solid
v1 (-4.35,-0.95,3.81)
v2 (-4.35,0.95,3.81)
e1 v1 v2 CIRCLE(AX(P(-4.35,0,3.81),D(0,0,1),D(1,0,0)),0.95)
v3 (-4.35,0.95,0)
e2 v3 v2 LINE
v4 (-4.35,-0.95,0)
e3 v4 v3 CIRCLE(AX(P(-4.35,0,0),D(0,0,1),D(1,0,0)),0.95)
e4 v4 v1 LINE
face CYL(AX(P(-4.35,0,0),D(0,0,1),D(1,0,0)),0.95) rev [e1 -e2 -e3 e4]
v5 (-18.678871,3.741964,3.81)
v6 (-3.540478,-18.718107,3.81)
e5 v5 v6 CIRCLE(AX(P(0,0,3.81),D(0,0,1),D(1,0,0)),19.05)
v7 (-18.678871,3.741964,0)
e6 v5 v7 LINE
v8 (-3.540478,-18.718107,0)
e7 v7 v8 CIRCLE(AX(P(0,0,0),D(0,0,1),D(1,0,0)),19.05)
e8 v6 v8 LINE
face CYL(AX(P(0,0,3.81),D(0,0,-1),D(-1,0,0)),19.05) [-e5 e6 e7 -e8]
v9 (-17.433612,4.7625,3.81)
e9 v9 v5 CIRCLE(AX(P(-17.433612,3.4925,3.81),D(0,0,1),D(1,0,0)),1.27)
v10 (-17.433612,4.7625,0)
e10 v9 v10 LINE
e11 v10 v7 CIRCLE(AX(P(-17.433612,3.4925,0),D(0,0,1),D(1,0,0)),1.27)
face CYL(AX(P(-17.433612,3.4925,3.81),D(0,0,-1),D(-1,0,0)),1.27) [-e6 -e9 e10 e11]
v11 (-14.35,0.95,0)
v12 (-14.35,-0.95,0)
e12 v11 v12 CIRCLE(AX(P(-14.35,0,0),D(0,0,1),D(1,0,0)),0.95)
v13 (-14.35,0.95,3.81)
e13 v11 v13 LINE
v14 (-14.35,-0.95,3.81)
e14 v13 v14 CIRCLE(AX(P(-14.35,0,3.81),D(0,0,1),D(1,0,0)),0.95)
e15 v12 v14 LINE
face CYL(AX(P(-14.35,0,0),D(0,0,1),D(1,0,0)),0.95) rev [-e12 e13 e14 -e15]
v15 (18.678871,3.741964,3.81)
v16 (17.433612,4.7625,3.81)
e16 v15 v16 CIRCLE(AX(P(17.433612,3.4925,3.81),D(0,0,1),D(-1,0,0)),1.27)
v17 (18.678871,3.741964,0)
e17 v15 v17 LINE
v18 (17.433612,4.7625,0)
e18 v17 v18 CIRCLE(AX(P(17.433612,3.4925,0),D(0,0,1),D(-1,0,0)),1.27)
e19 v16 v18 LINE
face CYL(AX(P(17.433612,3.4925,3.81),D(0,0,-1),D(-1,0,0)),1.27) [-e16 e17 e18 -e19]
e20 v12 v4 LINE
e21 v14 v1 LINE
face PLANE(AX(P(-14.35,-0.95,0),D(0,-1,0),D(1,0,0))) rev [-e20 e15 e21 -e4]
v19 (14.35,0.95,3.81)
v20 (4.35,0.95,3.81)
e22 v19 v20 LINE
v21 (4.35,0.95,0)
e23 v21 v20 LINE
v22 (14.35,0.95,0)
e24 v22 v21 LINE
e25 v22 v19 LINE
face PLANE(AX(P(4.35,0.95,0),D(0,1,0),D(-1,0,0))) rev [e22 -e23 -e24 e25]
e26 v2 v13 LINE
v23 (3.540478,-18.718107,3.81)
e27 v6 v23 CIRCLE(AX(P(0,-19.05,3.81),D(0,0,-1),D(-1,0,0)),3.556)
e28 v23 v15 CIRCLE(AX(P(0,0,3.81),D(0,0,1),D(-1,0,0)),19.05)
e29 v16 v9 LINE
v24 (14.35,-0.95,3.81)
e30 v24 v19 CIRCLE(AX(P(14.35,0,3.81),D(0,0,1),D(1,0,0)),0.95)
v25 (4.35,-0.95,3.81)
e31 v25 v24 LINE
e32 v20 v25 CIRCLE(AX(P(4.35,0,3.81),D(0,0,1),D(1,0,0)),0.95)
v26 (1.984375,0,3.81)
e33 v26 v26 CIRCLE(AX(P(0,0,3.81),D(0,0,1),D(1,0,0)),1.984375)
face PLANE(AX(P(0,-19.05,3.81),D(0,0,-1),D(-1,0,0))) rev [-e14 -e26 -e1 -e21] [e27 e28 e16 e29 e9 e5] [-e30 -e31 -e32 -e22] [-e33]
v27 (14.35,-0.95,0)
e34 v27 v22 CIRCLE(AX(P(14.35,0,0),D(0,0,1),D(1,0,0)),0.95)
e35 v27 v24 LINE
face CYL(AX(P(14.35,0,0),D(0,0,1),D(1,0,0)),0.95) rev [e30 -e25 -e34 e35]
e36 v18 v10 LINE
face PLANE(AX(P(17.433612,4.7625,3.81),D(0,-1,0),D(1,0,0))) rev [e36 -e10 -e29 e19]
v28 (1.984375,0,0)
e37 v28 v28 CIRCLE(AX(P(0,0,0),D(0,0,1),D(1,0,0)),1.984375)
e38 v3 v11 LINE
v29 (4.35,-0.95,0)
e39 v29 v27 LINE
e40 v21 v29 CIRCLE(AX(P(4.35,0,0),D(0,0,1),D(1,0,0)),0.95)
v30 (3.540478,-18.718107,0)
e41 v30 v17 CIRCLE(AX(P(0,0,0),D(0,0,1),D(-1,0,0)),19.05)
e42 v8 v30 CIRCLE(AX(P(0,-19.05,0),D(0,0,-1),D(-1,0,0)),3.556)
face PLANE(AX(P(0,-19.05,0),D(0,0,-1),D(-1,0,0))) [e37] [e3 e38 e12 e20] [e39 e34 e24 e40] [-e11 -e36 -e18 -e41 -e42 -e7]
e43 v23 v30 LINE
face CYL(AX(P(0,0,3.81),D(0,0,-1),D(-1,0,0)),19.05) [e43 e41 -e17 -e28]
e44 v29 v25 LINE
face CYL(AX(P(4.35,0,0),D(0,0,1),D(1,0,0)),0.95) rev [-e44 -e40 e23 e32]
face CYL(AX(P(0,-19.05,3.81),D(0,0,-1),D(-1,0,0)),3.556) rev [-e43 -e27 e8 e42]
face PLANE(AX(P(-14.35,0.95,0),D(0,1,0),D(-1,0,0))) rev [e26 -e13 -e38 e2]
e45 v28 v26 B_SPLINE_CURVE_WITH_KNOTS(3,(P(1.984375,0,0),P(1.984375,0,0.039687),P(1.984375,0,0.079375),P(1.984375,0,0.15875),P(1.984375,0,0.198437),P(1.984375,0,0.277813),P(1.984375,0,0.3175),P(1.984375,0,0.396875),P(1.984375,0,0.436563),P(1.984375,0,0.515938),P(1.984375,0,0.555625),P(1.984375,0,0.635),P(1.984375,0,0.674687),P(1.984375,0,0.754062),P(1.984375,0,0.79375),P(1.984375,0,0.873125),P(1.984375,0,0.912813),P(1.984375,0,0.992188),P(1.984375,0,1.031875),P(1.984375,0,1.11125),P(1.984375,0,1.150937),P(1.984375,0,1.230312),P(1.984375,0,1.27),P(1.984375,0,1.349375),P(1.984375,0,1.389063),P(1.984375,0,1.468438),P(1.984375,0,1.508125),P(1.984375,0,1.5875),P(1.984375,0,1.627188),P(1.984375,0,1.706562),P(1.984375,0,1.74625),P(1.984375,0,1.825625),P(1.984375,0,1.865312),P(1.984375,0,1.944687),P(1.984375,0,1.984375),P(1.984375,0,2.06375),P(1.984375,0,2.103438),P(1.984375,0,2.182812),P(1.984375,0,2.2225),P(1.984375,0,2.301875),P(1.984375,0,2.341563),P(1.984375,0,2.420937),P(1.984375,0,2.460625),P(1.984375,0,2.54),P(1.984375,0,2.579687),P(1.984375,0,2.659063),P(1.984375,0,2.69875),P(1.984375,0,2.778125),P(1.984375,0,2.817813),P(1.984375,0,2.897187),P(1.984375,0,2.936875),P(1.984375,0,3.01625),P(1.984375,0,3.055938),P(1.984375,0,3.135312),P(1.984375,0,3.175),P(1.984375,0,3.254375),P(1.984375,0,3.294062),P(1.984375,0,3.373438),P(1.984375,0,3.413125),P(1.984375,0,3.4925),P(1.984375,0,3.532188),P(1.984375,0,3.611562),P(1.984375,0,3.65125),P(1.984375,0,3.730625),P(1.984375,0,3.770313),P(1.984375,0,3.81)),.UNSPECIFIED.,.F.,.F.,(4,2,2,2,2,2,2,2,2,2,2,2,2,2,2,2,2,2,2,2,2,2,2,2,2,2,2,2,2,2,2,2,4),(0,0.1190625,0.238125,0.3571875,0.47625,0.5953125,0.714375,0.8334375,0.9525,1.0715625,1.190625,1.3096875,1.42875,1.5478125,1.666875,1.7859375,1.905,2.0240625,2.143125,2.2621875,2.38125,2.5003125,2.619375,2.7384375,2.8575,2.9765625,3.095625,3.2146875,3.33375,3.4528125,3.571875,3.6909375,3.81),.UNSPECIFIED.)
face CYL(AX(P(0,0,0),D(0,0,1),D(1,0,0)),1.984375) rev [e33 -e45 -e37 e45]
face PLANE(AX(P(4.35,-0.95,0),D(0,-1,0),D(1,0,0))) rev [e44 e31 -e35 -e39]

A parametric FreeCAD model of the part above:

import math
import FreeCAD as App
import Part
import Sketcher

V = App.Vector
Q = App.Units.Quantity

doc = App.newDocument("Part")
body = doc.addObject("PartDesign::Body", "Body")

# Sketch on XY plane
sketch1 = body.newObject("Sketcher::SketchObject", "Sketch")
sketch1.AttachmentSupport = (doc.getObject("XY_Plane"), [""])
sketch1.MapMode = "FlatFace"
sketch1.addGeometry(Part.LineSegment(V(17.433612, 4.7625, 0), V(-17.433612, 4.7625, 0)), False)
sketch1.addGeometry(Part.ArcOfCircle(Part.Circle(V(-17.433612, 3.4925, 0), V(0, 0, 1), 1.27), math.radians(90), math.radians(168.671811)), False)
sketch1.addGeometry(Part.ArcOfCircle(Part.Circle(V(0, 0, 0), V(0, 0, 1), 19.05), math.radians(168.671811), math.radians(259.289199)), False)
sketch1.addGeometry(Part.ArcOfCircle(Part.Circle(V(0, -19.05, 0), V(0, 0, 1), 3.556), math.radians(5.355401), math.radians(174.644599)), False)
sketch1.addGeometry(Part.ArcOfCircle(Part.Circle(V(0, 0, 0), V(0, 0, 1), 19.05), math.radians(-79.289199), math.radians(11.328189)), False)
sketch1.addGeometry(Part.ArcOfCircle(Part.Circle(V(17.433612, 3.4925, 0), V(0, 0, 1), 1.27), math.radians(11.328189), math.radians(90)), False)
sketch1.addConstraint(Sketcher.Constraint("Tangent", 0, 2, 1, 1))
sketch1.addConstraint(Sketcher.Constraint("Tangent", 1, 2, 2, 1))
sketch1.addConstraint(Sketcher.Constraint("Coincident", 2, 2, 3, 2))
sketch1.addConstraint(Sketcher.Constraint("Coincident", 3, 1, 4, 1))
sketch1.addConstraint(Sketcher.Constraint("Tangent", 4, 2, 5, 1))
sketch1.addConstraint(Sketcher.Constraint("Tangent", 5, 2, 0, 1))
sketch1.addConstraint(Sketcher.Constraint("Horizontal", 0))
sketch1.addConstraint(Sketcher.Constraint("Coincident", 2, 3, -1, 1))
sketch1.addConstraint(Sketcher.Constraint("Coincident", 4, 3, -1, 1))
sketch1.addConstraint(Sketcher.Constraint("Equal", 2, 4))
sketch1.addConstraint(Sketcher.Constraint("Equal", 1, 5))
sketch1.addConstraint(Sketcher.Constraint("PointOnObject", 3, 3, -2))
sketch1.addConstraint(Sketcher.Constraint("Radius", 1, Q("0.05 in")))
sketch1.addConstraint(Sketcher.Constraint("Radius", 2, Q("0.75 in")))
sketch1.addConstraint(Sketcher.Constraint("Radius", 3, Q("0.14 in")))
sketch1.addConstraint(Sketcher.Constraint("DistanceY", 3, 3, -1, 1, Q("0.75 in")))
sketch1.addConstraint(Sketcher.Constraint("DistanceY", -1, 1, 0, 2, Q("0.1875 in")))
pad1 = body.newObject("PartDesign::Pad", "Pad")
pad1.Profile = sketch1
pad1.Length = Q("0.15 in")

# Sketch on XY plane
sketch2 = body.newObject("Sketcher::SketchObject", "Sketch001")
sketch2.AttachmentSupport = (doc.getObject("XY_Plane"), [""])
sketch2.MapMode = "FlatFace"
sketch2.AttachmentOffset = App.Placement(V(0, 0, 0.15 * 25.4), App.Rotation())
sketch2.addGeometry(Part.Circle(V(0, 0, 0), V(0, 0, 1), 1.984375), False)
sketch2.addGeometry(Part.LineSegment(V(-4.35, 0.95, 0), V(-14.35, 0.95, 0)), False)
sketch2.addGeometry(Part.ArcOfCircle(Part.Circle(V(-14.35, 0, 0), V(0, 0, 1), 0.95), math.radians(90), math.radians(270)), False)
sketch2.addGeometry(Part.LineSegment(V(-14.35, -0.95, 0), V(-4.35, -0.95, 0)), False)
sketch2.addGeometry(Part.ArcOfCircle(Part.Circle(V(-4.35, 0, 0), V(0, 0, 1), 0.95), math.radians(-90), math.radians(90)), False)
sketch2.addGeometry(Part.LineSegment(V(14.35, 0.95, 0), V(4.35, 0.95, 0)), False)
sketch2.addGeometry(Part.ArcOfCircle(Part.Circle(V(4.35, 0, 0), V(0, 0, 1), 0.95), math.radians(90), math.radians(270)), False)
sketch2.addGeometry(Part.LineSegment(V(4.35, -0.95, 0), V(14.35, -0.95, 0)), False)
sketch2.addGeometry(Part.ArcOfCircle(Part.Circle(V(14.35, 0, 0), V(0, 0, 1), 0.95), math.radians(-90), math.radians(90)), False)
sketch2.addConstraint(Sketcher.Constraint("Tangent", 1, 2, 2, 1))
sketch2.addConstraint(Sketcher.Constraint("Tangent", 2, 2, 3, 1))
sketch2.addConstraint(Sketcher.Constraint("Tangent", 3, 2, 4, 1))
sketch2.addConstraint(Sketcher.Constraint("Tangent", 4, 2, 1, 1))
sketch2.addConstraint(Sketcher.Constraint("Tangent", 5, 2, 6, 1))
sketch2.addConstraint(Sketcher.Constraint("Tangent", 6, 2, 7, 1))
sketch2.addConstraint(Sketcher.Constraint("Tangent", 7, 2, 8, 1))
sketch2.addConstraint(Sketcher.Constraint("Tangent", 8, 2, 5, 1))
sketch2.addConstraint(Sketcher.Constraint("Horizontal", 1))
sketch2.addConstraint(Sketcher.Constraint("Horizontal", 3))
sketch2.addConstraint(Sketcher.Constraint("Horizontal", 5))
sketch2.addConstraint(Sketcher.Constraint("Horizontal", 7))
sketch2.addConstraint(Sketcher.Constraint("Coincident", 0, 3, -1, 1))
sketch2.addConstraint(Sketcher.Constraint("Equal", 4, 6))
sketch2.addConstraint(Sketcher.Constraint("Symmetric", 4, 3, 6, 3, -1, 1))
sketch2.addConstraint(Sketcher.Constraint("Symmetric", 2, 3, 8, 3, -2))
sketch2.addConstraint(Sketcher.Constraint("Diameter", 0, Q("0.15625 in")))
sketch2.addConstraint(Sketcher.Constraint("Radius", 2, 0.95))
sketch2.addConstraint(Sketcher.Constraint("DistanceX", 1, 2, 1, 1, 10.0))
sketch2.addConstraint(Sketcher.Constraint("DistanceX", 2, 3, -1, 1, 14.35))
pocket1 = body.newObject("PartDesign::Pocket", "Pocket")
pocket1.Profile = sketch2
pocket1.Type = "ThroughAll"

doc.recompute()
